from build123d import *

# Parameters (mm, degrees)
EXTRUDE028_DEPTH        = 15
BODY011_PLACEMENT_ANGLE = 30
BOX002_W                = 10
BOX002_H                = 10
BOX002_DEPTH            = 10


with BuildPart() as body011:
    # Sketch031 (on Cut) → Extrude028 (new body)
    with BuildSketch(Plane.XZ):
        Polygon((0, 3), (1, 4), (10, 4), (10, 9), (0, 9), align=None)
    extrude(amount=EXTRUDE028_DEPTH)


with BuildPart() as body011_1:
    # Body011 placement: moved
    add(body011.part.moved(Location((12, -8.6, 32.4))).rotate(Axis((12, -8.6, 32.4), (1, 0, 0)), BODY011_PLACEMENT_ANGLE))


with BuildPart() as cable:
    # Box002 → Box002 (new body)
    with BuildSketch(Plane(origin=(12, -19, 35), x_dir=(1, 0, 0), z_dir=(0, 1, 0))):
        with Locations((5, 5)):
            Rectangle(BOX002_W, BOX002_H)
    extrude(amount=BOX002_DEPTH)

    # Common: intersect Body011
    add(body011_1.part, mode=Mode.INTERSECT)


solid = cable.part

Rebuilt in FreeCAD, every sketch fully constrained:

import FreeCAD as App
import Part
import Sketcher

V = App.Vector


def add_polygon(sketch, points):
    """Adds a closed chain of lines whose ends are joined by coincident constraints."""
    first, n = sketch.GeometryCount, len(points)
    for a, b in zip(points, points[1:] + points[:1]):
        sketch.addGeometry(Part.LineSegment(App.Vector(*a, 0), App.Vector(*b, 0)), False)
    for i in range(n):
        sketch.addConstraint(Sketcher.Constraint("Coincident", first + i, 2, first + (i + 1) % n, 1))

doc = App.newDocument("Part")
body = doc.addObject("PartDesign::Body", "Body")

sketch1 = doc.addObject("Sketcher::SketchObject", "Sketch")
body.addObject(sketch1)
sketch1.AttachmentSupport = (doc.XZ_Plane, [""])
sketch1.MapMode = "FlatFace"
add_polygon(sketch1, [(0, 3), (1, 4), (10, 4), (10, 9), (0, 9)])
sketch1.addConstraint([
    Sketcher.Constraint("Horizontal", 1),
    Sketcher.Constraint("Vertical", 2),
    Sketcher.Constraint("Horizontal", 3),
    Sketcher.Constraint("Vertical", 4),
    Sketcher.Constraint("PointOnObject", 3, 2, -2),
    Sketcher.Constraint("DistanceX", 1, 1, 1, 2, 9.0),
    Sketcher.Constraint("DistanceX", 3, 2, 3, 1, 10.0),
    Sketcher.Constraint("DistanceY", 2, 1, 2, 2, 5.0),
    Sketcher.Constraint("DistanceY", 4, 2, 4, 1, 6.0),
    Sketcher.Constraint("DistanceY", -1, 1, 0, 2, 4.0),
])
pad1 = doc.addObject("PartDesign::Pad", "Pad")
body.addObject(pad1)
pad1.Profile = sketch1
pad1.Length = 15
body2 = doc.addObject("PartDesign::Body", "Body001")
doc.recompute()

body.Placement = App.Placement(V(12, -8.6, 32.4), App.Rotation(V(1, 0, 0), 30))
boolean = doc.addObject("PartDesign::Boolean", "Boolean")
body2.addObject(boolean)
boolean.Type = "Fuse"
boolean.addObjects([body])
body3 = doc.addObject("PartDesign::Body", "Body002")

sketch2 = doc.addObject("Sketcher::SketchObject", "Sketch001")
body3.addObject(sketch2)
sketch2.AttachmentSupport = (doc.getObject("XZ_Plane002"), [""])
sketch2.MapMode = "FlatFace"
sketch2.AttachmentOffset = App.Placement(V(0, 0, 19), App.Rotation())
add_polygon(sketch2, [(12, 25), (12, 35), (22, 35), (22, 25)])
sketch2.addConstraint([
    Sketcher.Constraint("Vertical", 0),
    Sketcher.Constraint("Horizontal", 1),
    Sketcher.Constraint("Vertical", 2),
    Sketcher.Constraint("Horizontal", 3),
    Sketcher.Constraint("Equal", 3, 0),
    Sketcher.Constraint("DistanceX", 1, 1, 1, 2, 10.0),
    Sketcher.Constraint("DistanceX", -1, 1, 0, 2, 12.0),
    Sketcher.Constraint("DistanceY", -1, 1, 0, 2, 35.0),
])
pad2 = doc.addObject("PartDesign::Pad", "Pad001")
body3.addObject(pad2)
pad2.Profile = sketch2
pad2.Length = 10
pad2.Reversed = True
doc.recompute()

boolean2 = doc.addObject("PartDesign::Boolean", "Boolean001")
body3.addObject(boolean2)
boolean2.Type = "Common"
boolean2.addObjects([body2])

doc.recompute()
